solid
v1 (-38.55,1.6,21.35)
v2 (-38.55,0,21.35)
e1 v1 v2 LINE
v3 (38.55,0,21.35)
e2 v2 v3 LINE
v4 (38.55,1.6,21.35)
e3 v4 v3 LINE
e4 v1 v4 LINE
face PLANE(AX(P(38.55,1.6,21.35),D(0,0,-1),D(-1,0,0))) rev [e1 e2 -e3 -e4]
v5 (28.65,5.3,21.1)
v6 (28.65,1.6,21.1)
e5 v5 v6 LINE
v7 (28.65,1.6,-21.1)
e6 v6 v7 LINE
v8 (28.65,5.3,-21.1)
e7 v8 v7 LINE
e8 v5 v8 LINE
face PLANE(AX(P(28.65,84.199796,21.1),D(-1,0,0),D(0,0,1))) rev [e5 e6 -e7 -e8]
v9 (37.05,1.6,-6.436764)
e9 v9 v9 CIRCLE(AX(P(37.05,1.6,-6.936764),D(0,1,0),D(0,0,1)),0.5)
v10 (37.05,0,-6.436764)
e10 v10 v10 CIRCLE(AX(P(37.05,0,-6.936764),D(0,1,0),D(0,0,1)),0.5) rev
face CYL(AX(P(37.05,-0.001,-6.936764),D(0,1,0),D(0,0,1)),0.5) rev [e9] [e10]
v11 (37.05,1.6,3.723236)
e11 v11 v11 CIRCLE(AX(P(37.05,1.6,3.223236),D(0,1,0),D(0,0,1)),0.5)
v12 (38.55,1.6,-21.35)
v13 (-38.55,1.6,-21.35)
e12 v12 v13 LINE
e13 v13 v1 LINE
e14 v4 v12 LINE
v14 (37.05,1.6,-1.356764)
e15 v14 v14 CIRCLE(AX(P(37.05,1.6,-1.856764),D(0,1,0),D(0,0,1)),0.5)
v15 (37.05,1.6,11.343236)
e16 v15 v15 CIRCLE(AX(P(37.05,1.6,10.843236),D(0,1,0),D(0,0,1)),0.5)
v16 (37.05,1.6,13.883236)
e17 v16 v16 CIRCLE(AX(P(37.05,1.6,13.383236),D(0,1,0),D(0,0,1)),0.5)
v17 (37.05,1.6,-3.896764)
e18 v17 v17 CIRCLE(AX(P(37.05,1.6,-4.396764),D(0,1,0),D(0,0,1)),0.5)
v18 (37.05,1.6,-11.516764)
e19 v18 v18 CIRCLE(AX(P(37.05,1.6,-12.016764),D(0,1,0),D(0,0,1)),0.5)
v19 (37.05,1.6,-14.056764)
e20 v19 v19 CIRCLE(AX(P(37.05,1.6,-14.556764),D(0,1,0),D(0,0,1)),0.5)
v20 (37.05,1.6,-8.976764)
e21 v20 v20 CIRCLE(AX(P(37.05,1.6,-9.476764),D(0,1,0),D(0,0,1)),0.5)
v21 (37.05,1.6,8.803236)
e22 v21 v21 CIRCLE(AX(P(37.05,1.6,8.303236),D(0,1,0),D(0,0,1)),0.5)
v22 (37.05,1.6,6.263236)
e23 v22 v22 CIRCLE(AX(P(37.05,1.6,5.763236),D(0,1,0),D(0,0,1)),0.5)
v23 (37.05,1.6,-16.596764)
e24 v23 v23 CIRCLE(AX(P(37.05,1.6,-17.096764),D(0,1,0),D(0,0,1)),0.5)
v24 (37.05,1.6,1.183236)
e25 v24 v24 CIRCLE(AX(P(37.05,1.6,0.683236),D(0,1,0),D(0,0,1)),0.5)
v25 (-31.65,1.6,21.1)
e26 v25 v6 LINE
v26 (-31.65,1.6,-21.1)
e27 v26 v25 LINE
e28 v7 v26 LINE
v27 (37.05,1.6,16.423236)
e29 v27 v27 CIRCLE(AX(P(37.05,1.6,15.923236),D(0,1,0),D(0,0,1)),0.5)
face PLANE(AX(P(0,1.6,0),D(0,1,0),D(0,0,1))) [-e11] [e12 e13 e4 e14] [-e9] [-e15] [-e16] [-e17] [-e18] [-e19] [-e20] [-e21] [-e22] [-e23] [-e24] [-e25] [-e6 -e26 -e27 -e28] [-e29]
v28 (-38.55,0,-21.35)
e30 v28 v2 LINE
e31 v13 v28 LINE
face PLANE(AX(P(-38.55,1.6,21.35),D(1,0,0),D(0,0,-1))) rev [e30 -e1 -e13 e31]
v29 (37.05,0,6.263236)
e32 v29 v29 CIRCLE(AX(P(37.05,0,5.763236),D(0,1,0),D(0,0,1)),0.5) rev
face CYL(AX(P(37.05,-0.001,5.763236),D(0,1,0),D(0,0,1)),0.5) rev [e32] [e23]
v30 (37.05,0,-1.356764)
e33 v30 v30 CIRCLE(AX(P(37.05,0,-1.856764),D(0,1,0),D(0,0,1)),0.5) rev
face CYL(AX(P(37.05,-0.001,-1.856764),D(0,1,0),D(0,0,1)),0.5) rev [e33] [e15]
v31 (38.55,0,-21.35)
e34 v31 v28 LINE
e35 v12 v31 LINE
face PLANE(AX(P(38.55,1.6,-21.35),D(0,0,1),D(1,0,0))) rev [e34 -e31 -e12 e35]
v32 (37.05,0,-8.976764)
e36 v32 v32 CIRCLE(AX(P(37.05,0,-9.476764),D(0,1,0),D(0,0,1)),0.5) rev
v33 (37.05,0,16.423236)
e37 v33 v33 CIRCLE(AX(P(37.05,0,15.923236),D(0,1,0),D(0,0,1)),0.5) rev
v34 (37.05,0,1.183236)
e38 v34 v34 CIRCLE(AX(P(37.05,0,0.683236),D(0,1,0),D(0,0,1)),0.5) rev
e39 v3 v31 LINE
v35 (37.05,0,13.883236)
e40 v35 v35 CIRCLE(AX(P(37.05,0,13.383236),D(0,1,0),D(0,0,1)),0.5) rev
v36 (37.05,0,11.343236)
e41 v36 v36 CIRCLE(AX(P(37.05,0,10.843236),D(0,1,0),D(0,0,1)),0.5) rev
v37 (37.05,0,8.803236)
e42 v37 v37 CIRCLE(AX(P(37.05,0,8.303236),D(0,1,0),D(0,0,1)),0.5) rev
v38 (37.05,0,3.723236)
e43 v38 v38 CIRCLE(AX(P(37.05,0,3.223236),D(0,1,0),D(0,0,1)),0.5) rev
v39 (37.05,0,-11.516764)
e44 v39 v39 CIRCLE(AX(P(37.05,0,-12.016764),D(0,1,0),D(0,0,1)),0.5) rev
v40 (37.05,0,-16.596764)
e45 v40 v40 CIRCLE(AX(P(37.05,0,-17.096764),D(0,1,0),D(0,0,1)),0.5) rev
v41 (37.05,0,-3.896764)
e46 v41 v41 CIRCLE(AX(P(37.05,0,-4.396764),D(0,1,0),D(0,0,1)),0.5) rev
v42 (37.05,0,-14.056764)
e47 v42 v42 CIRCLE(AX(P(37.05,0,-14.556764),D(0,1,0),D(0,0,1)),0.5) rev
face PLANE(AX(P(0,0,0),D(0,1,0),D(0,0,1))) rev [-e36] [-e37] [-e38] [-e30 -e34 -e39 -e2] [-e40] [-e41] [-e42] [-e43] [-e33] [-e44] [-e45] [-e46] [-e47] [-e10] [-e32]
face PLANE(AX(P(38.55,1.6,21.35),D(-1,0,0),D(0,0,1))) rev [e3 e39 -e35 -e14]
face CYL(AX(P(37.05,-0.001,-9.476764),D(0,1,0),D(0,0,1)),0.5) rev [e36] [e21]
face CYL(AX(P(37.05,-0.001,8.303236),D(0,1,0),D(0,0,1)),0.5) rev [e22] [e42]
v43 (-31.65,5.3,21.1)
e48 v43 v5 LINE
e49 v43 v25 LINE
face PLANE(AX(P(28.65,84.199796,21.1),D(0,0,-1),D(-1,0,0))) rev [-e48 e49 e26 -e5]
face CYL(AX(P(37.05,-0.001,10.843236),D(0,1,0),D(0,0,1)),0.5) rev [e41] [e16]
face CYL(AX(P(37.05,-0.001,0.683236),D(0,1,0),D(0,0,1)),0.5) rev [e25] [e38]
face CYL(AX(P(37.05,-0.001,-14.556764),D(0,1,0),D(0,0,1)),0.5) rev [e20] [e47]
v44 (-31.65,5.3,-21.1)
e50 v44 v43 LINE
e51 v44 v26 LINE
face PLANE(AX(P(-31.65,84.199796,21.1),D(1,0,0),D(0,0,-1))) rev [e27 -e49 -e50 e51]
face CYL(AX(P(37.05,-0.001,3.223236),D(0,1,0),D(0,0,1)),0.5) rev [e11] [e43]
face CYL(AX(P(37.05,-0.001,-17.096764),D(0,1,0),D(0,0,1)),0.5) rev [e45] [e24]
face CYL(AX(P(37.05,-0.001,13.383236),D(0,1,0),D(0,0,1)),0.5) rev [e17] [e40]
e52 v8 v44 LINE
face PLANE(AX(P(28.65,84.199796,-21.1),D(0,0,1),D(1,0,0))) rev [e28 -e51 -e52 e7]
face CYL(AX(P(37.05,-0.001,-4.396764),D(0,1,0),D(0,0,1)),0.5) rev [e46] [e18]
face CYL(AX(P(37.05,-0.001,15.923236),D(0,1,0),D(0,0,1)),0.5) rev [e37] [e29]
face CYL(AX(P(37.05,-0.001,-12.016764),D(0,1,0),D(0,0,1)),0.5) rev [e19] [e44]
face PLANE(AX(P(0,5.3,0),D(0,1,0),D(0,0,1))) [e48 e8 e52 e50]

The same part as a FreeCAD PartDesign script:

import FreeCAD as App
import Part
import Sketcher
from FreeCAD import Vector


def add_polygon(sketch, points):
    """Adds a closed chain of lines whose ends are joined by coincident constraints."""
    first, n = sketch.GeometryCount, len(points)
    for a, b in zip(points, points[1:] + points[:1]):
        sketch.addGeometry(Part.LineSegment(App.Vector(*a, 0), App.Vector(*b, 0)), False)
    for i in range(n):
        sketch.addConstraint(Sketcher.Constraint("Coincident", first + i, 2, first + (i + 1) % n, 1))

doc = App.newDocument("Part")
body = doc.addObject("PartDesign::Body", "Body")

# Sketch on XZ plane
sketch1 = body.newObject("Sketcher::SketchObject", "Sketch")
sketch1.AttachmentSupport = (doc.getObject("XZ_Plane"), [""])
sketch1.MapMode = "FlatFace"
add_polygon(sketch1, [(-38.55, -21.35), (-38.55, 21.35), (38.55, 21.35), (38.55, -21.35)])  # lines 0-3
sketch1.addConstraint([
    Sketcher.Constraint("Vertical", 0),
    Sketcher.Constraint("Horizontal", 1),
    Sketcher.Constraint("Vertical", 2),
    Sketcher.Constraint("Horizontal", 3),
    Sketcher.Constraint("Symmetric", 0, 2, 2, 2, -1, 1),
    Sketcher.Constraint("DistanceX", 1, 1, 1, 2, 77.1),
    Sketcher.Constraint("DistanceY", 0, 1, 0, 2, 42.7),
])
pad1 = body.newObject("PartDesign::Pad", "Pad")
pad1.Profile = sketch1
pad1.Length = 1.6
pad1.Reversed = True

# Sketch on XZ plane
sketch2 = body.newObject("Sketcher::SketchObject", "Sketch001")
sketch2.AttachmentSupport = (doc.getObject("XZ_Plane"), [""])
sketch2.MapMode = "FlatFace"
sketch2.AttachmentOffset = App.Placement(Vector(0, 0, -1.6), App.Rotation())
add_polygon(sketch2, [(-31.65, -21.1), (-31.65, 21.1), (28.65, 21.1), (28.65, -21.1)])  # lines 0-3
sketch2.addConstraint([
    Sketcher.Constraint("Vertical", 0),
    Sketcher.Constraint("Horizontal", 1),
    Sketcher.Constraint("Vertical", 2),
    Sketcher.Constraint("Horizontal", 3),
    Sketcher.Constraint("DistanceX", 1, 1, 1, 2, 60.3),
    Sketcher.Constraint("DistanceY", 0, 1, 0, 2, 42.2),
    Sketcher.Constraint("DistanceY", -1, 1, 0, 2, 21.1),
    Sketcher.Constraint("DistanceX", 0, 2, -1, 1, 31.65),
])
pad2 = body.newObject("PartDesign::Pad", "Pad001")
pad2.Profile = sketch2
pad2.Length = 3.7
pad2.Reversed = True

# Sketch on XZ plane
sketch3 = body.newObject("Sketcher::SketchObject", "Sketch002")
sketch3.AttachmentSupport = (doc.getObject("XZ_Plane"), [""])
sketch3.MapMode = "FlatFace"
sketch3.AttachmentOffset = App.Placement(Vector(0, 0, -1.6), App.Rotation())
sketch3.addGeometry(Part.Circle(Vector(37.05, 15.923236, 0), Vector(0, 0, 1), 0.5), False)
sketch3.addConstraint([
    Sketcher.Constraint("Diameter", 0, 1.0),
    Sketcher.Constraint("DistanceX", -1, 1, 0, 3, 37.05),
    Sketcher.Constraint("DistanceY", -1, 1, 0, 3, 15.923236),
])
pocket1 = body.newObject("PartDesign::Pocket", "Pocket")
pocket1.Profile = sketch3
pocket1.Type = "UpToFirst"
pocket1.Reversed = True

# Sketch on XZ plane
sketch4 = body.newObject("Sketcher::SketchObject", "Sketch003")
sketch4.AttachmentSupport = (doc.getObject("XZ_Plane"), [""])
sketch4.MapMode = "FlatFace"
sketch4.AttachmentOffset = App.Placement(Vector(0, 0, -1.6), App.Rotation())
sketch4.addGeometry(Part.Circle(Vector(37.05, 13.383236, 0), Vector(0, 0, 1), 0.5), False)
sketch4.addConstraint([
    Sketcher.Constraint("Diameter", 0, 1.0),
    Sketcher.Constraint("DistanceX", -1, 1, 0, 3, 37.05),
    Sketcher.Constraint("DistanceY", -1, 1, 0, 3, 13.383236),
])
pocket2 = body.newObject("PartDesign::Pocket", "Pocket001")
pocket2.Profile = sketch4
pocket2.Type = "UpToFirst"
pocket2.Reversed = True

# Sketch on XZ plane
sketch5 = body.newObject("Sketcher::SketchObject", "Sketch004")
sketch5.AttachmentSupport = (doc.getObject("XZ_Plane"), [""])
sketch5.MapMode = "FlatFace"
sketch5.AttachmentOffset = App.Placement(Vector(0, 0, -1.6), App.Rotation())
sketch5.addGeometry(Part.Circle(Vector(37.05, 10.843236, 0), Vector(0, 0, 1), 0.5), False)
sketch5.addConstraint([
    Sketcher.Constraint("Diameter", 0, 1.0),
    Sketcher.Constraint("DistanceX", -1, 1, 0, 3, 37.05),
    Sketcher.Constraint("DistanceY", -1, 1, 0, 3, 10.843236),
])
pocket3 = body.newObject("PartDesign::Pocket", "Pocket002")
pocket3.Profile = sketch5
pocket3.Type = "UpToFirst"
pocket3.Reversed = True

# Sketch on XZ plane
sketch6 = body.newObject("Sketcher::SketchObject", "Sketch005")
sketch6.AttachmentSupport = (doc.getObject("XZ_Plane"), [""])
sketch6.MapMode = "FlatFace"
sketch6.AttachmentOffset = App.Placement(Vector(0, 0, -1.6), App.Rotation())
sketch6.addGeometry(Part.Circle(Vector(37.05, 8.303236, 0), Vector(0, 0, 1), 0.5), False)
sketch6.addConstraint([
    Sketcher.Constraint("Diameter", 0, 1.0),
    Sketcher.Constraint("DistanceX", -1, 1, 0, 3, 37.05),
    Sketcher.Constraint("DistanceY", -1, 1, 0, 3, 8.303236),
])
pocket4 = body.newObject("PartDesign::Pocket", "Pocket003")
pocket4.Profile = sketch6
pocket4.Type = "UpToFirst"
pocket4.Reversed = True

# Sketch on XZ plane
sketch7 = body.newObject("Sketcher::SketchObject", "Sketch006")
sketch7.AttachmentSupport = (doc.getObject("XZ_Plane"), [""])
sketch7.MapMode = "FlatFace"
sketch7.AttachmentOffset = App.Placement(Vector(0, 0, -1.6), App.Rotation())
sketch7.addGeometry(Part.Circle(Vector(37.05, 5.763236, 0), Vector(0, 0, 1), 0.5), False)
sketch7.addConstraint([
    Sketcher.Constraint("Diameter", 0, 1.0),
    Sketcher.Constraint("DistanceX", -1, 1, 0, 3, 37.05),
    Sketcher.Constraint("DistanceY", -1, 1, 0, 3, 5.763236),
])
pocket5 = body.newObject("PartDesign::Pocket", "Pocket004")
pocket5.Profile = sketch7
pocket5.Type = "UpToFirst"
pocket5.Reversed = True

# Sketch on XZ plane
sketch8 = body.newObject("Sketcher::SketchObject", "Sketch007")
sketch8.AttachmentSupport = (doc.getObject("XZ_Plane"), [""])
sketch8.MapMode = "FlatFace"
sketch8.AttachmentOffset = App.Placement(Vector(0, 0, -1.6), App.Rotation())
sketch8.addGeometry(Part.Circle(Vector(37.05, 3.223236, 0), Vector(0, 0, 1), 0.5), False)
sketch8.addConstraint([
    Sketcher.Constraint("Diameter", 0, 1.0),
    Sketcher.Constraint("DistanceX", -1, 1, 0, 3, 37.05),
    Sketcher.Constraint("DistanceY", -1, 1, 0, 3, 3.223236),
])
pocket6 = body.newObject("PartDesign::Pocket", "Pocket005")
pocket6.Profile = sketch8
pocket6.Type = "UpToFirst"
pocket6.Reversed = True

# Sketch on XZ plane
sketch9 = body.newObject("Sketcher::SketchObject", "Sketch008")
sketch9.AttachmentSupport = (doc.getObject("XZ_Plane"), [""])
sketch9.MapMode = "FlatFace"
sketch9.AttachmentOffset = App.Placement(Vector(0, 0, -1.6), App.Rotation())
sketch9.addGeometry(Part.Circle(Vector(37.05, 0.683236, 0), Vector(0, 0, 1), 0.5), False)
sketch9.addConstraint([
    Sketcher.Constraint("Diameter", 0, 1.0),
    Sketcher.Constraint("DistanceX", -1, 1, 0, 3, 37.05),
    Sketcher.Constraint("DistanceY", -1, 1, 0, 3, 0.683236),
])
pocket7 = body.newObject("PartDesign::Pocket", "Pocket006")
pocket7.Profile = sketch9
pocket7.Type = "UpToFirst"
pocket7.Reversed = True

# Sketch on XZ plane
sketch10 = body.newObject("Sketcher::SketchObject", "Sketch009")
sketch10.AttachmentSupport = (doc.getObject("XZ_Plane"), [""])
sketch10.MapMode = "FlatFace"
sketch10.AttachmentOffset = App.Placement(Vector(0, 0, -1.6), App.Rotation())
sketch10.addGeometry(Part.Circle(Vector(37.05, -1.856764, 0), Vector(0, 0, 1), 0.5), False)
sketch10.addConstraint([
    Sketcher.Constraint("Diameter", 0, 1.0),
    Sketcher.Constraint("DistanceX", -1, 1, 0, 3, 37.05),
    Sketcher.Constraint("DistanceY", 0, 3, -1, 1, 1.856764),
])
pocket8 = body.newObject("PartDesign::Pocket", "Pocket007")
pocket8.Profile = sketch10
pocket8.Type = "UpToFirst"
pocket8.Reversed = True

# Sketch on XZ plane
sketch11 = body.newObject("Sketcher::SketchObject", "Sketch010")
sketch11.AttachmentSupport = (doc.getObject("XZ_Plane"), [""])
sketch11.MapMode = "FlatFace"
sketch11.AttachmentOffset = App.Placement(Vector(0, 0, -1.6), App.Rotation())
sketch11.addGeometry(Part.Circle(Vector(37.05, -4.396764, 0), Vector(0, 0, 1), 0.5), False)
sketch11.addConstraint([
    Sketcher.Constraint("Diameter", 0, 1.0),
    Sketcher.Constraint("DistanceX", -1, 1, 0, 3, 37.05),
    Sketcher.Constraint("DistanceY", 0, 3, -1, 1, 4.396764),
])
pocket9 = body.newObject("PartDesign::Pocket", "Pocket008")
pocket9.Profile = sketch11
pocket9.Type = "UpToFirst"
pocket9.Reversed = True

# Sketch on XZ plane
sketch12 = body.newObject("Sketcher::SketchObject", "Sketch011")
sketch12.AttachmentSupport = (doc.getObject("XZ_Plane"), [""])
sketch12.MapMode = "FlatFace"
sketch12.AttachmentOffset = App.Placement(Vector(0, 0, -1.6), App.Rotation())
sketch12.addGeometry(Part.Circle(Vector(37.05, -6.936764, 0), Vector(0, 0, 1), 0.5), False)
sketch12.addConstraint([
    Sketcher.Constraint("Diameter", 0, 1.0),
    Sketcher.Constraint("DistanceX", -1, 1, 0, 3, 37.05),
    Sketcher.Constraint("DistanceY", 0, 3, -1, 1, 6.936764),
])
pocket10 = body.newObject("PartDesign::Pocket", "Pocket009")
pocket10.Profile = sketch12
pocket10.Type = "UpToFirst"
pocket10.Reversed = True

# Sketch on XZ plane
sketch13 = body.newObject("Sketcher::SketchObject", "Sketch012")
sketch13.AttachmentSupport = (doc.getObject("XZ_Plane"), [""])
sketch13.MapMode = "FlatFace"
sketch13.AttachmentOffset = App.Placement(Vector(0, 0, -1.6), App.Rotation())
sketch13.addGeometry(Part.Circle(Vector(37.05, -9.476764, 0), Vector(0, 0, 1), 0.5), False)
sketch13.addConstraint([
    Sketcher.Constraint("Diameter", 0, 1.0),
    Sketcher.Constraint("DistanceX", -1, 1, 0, 3, 37.05),
    Sketcher.Constraint("DistanceY", 0, 3, -1, 1, 9.476764),
])
pocket11 = body.newObject("PartDesign::Pocket", "Pocket010")
pocket11.Profile = sketch13
pocket11.Type = "UpToFirst"
pocket11.Reversed = True

# Sketch on XZ plane
sketch14 = body.newObject("Sketcher::SketchObject", "Sketch013")
sketch14.AttachmentSupport = (doc.getObject("XZ_Plane"), [""])
sketch14.MapMode = "FlatFace"
sketch14.AttachmentOffset = App.Placement(Vector(0, 0, -1.6), App.Rotation())
sketch14.addGeometry(Part.Circle(Vector(37.05, -12.016764, 0), Vector(0, 0, 1), 0.5), False)
sketch14.addConstraint([
    Sketcher.Constraint("Diameter", 0, 1.0),
    Sketcher.Constraint("DistanceX", -1, 1, 0, 3, 37.05),
    Sketcher.Constraint("DistanceY", 0, 3, -1, 1, 12.016764),
])
pocket12 = body.newObject("PartDesign::Pocket", "Pocket011")
pocket12.Profile = sketch14
pocket12.Type = "UpToFirst"
pocket12.Reversed = True

# Sketch on XZ plane
sketch15 = body.newObject("Sketcher::SketchObject", "Sketch014")
sketch15.AttachmentSupport = (doc.getObject("XZ_Plane"), [""])
sketch15.MapMode = "FlatFace"
sketch15.AttachmentOffset = App.Placement(Vector(0, 0, -1.6), App.Rotation())
sketch15.addGeometry(Part.Circle(Vector(37.05, -14.556764, 0), Vector(0, 0, 1), 0.5), False)
sketch15.addConstraint([
    Sketcher.Constraint("Diameter", 0, 1.0),
    Sketcher.Constraint("DistanceX", -1, 1, 0, 3, 37.05),
    Sketcher.Constraint("DistanceY", 0, 3, -1, 1, 14.556764),
])
pocket13 = body.newObject("PartDesign::Pocket", "Pocket012")
pocket13.Profile = sketch15
pocket13.Type = "UpToFirst"
pocket13.Reversed = True

# Sketch on XZ plane
sketch16 = body.newObject("Sketcher::SketchObject", "Sketch015")
sketch16.AttachmentSupport = (doc.getObject("XZ_Plane"), [""])
sketch16.MapMode = "FlatFace"
sketch16.AttachmentOffset = App.Placement(Vector(0, 0, -1.6), App.Rotation())
sketch16.addGeometry(Part.Circle(Vector(37.05, -17.096764, 0), Vector(0, 0, 1), 0.5), False)
sketch16.addConstraint([
    Sketcher.Constraint("Diameter", 0, 1.0),
    Sketcher.Constraint("DistanceX", -1, 1, 0, 3, 37.05),
    Sketcher.Constraint("DistanceY", 0, 3, -1, 1, 17.096764),
])
pocket14 = body.newObject("PartDesign::Pocket", "Pocket013")
pocket14.Profile = sketch16
pocket14.Type = "UpToFirst"
pocket14.Reversed = True

doc.recompute()
